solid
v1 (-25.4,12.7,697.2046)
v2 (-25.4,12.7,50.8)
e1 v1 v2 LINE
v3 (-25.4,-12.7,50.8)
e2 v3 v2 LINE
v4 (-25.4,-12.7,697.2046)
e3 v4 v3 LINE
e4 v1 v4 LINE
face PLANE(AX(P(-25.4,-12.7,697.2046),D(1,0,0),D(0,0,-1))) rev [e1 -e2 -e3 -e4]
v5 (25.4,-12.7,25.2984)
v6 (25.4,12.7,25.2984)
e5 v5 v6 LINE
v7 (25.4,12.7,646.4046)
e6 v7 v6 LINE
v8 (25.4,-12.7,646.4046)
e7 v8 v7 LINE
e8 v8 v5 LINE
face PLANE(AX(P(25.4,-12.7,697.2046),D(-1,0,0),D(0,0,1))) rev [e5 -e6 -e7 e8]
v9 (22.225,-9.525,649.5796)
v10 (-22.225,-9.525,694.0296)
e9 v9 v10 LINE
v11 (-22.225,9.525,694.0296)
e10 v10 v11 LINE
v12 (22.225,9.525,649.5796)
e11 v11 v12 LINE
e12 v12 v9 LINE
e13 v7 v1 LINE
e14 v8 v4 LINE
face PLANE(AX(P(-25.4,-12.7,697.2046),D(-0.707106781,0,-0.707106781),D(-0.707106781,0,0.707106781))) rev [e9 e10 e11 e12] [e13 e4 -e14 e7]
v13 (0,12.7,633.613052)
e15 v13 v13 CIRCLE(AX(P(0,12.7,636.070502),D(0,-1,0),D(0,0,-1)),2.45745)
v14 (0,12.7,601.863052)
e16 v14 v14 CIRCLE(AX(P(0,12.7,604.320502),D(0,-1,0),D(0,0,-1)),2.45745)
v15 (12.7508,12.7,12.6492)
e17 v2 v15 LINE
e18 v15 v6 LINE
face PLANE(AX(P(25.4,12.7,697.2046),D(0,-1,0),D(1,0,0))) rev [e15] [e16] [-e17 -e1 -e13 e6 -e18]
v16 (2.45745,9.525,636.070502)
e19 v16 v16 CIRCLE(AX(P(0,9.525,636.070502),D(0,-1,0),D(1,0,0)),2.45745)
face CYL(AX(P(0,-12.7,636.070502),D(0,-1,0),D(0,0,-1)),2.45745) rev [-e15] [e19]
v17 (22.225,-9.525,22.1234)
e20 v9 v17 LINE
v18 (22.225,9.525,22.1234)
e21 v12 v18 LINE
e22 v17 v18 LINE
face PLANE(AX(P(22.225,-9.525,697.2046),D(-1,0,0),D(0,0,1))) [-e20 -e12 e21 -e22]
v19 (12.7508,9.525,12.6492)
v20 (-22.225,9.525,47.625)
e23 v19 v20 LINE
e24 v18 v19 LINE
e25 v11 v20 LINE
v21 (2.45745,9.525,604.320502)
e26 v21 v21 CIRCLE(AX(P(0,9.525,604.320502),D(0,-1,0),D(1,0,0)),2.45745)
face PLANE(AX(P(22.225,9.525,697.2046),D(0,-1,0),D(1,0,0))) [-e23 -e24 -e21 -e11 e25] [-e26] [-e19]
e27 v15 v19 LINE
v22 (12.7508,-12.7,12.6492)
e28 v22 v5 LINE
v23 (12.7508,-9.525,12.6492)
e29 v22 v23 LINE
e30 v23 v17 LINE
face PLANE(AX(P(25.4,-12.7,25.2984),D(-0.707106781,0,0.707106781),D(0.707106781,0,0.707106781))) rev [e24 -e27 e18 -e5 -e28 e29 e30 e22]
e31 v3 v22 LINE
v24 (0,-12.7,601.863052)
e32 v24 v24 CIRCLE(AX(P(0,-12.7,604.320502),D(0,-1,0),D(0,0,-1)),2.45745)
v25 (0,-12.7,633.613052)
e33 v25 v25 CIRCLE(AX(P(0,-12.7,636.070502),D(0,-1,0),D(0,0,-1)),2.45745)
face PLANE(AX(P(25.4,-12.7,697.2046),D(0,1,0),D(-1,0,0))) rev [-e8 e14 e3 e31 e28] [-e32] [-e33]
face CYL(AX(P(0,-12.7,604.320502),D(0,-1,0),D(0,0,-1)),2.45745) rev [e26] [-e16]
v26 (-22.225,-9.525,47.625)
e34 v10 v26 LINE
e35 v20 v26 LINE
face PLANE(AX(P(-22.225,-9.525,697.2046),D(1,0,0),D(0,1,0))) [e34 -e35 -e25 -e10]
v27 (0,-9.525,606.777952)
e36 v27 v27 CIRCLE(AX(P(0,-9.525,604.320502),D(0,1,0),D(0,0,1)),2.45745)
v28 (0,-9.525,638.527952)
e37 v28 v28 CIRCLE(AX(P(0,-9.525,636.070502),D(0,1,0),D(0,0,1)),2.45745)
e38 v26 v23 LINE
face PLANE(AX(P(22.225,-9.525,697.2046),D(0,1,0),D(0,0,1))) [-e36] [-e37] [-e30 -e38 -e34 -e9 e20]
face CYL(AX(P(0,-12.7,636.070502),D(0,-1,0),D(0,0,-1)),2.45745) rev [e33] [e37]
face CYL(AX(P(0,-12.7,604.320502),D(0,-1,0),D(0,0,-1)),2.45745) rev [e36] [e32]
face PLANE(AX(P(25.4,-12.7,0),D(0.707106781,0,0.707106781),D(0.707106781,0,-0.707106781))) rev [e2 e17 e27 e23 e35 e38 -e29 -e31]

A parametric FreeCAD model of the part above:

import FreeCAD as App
import Part
import Sketcher
Q = App.Units.Quantity


def add_polygon(sketch, points):
    """Adds a closed chain of lines whose ends are joined by coincident constraints."""
    first, n = sketch.GeometryCount, len(points)
    for a, b in zip(points, points[1:] + points[:1]):
        sketch.addGeometry(Part.LineSegment(App.Vector(*a, 0), App.Vector(*b, 0)), False)
    for i in range(n):
        sketch.addConstraint(Sketcher.Constraint("Coincident", first + i, 2, first + (i + 1) % n, 1))

doc = App.newDocument("Part")
params = doc.addObject("Spreadsheet::Sheet", "Params")
for row, (alias, value) in enumerate([
    ("sketch1_width", "2 in"),
    ("sketch1_height", "1 in"),
    ("sketch1_width2", "1.75 in"),
    ("sketch1_height2", "0.75 in"),
    ("pad1_length", "27.449 in"),
    ("sketch2_width", "2 in"),
    ("sketch3_height", "0.996 in"),
    ("hole_diameter", "0.1935 in"),
], start=1):
    params.set(f"A{row}", alias)
    params.set(f"B{row}", "=" + value)
    params.setAlias(f"B{row}", alias)

body = doc.addObject("PartDesign::Body", "Body")

# Sketch on XY plane
sketch1 = body.newObject("Sketcher::SketchObject", "Sketch")
sketch1.AttachmentSupport = (doc.getObject("XY_Plane"), [""])
sketch1.MapMode = "FlatFace"
add_polygon(sketch1, [(-25, 13), (-25, -13), (25, -13), (25, 13)])  # lines 0-3
add_polygon(sketch1, [(22, -10), (-22, -10), (-22, 10), (22, 10)])  # lines 4-7
sketch1.addConstraint([
    Sketcher.Constraint("Vertical", 0),
    Sketcher.Constraint("Horizontal", 1),
    Sketcher.Constraint("Vertical", 2),
    Sketcher.Constraint("Horizontal", 3),
    Sketcher.Constraint("Horizontal", 4),
    Sketcher.Constraint("Vertical", 5),
    Sketcher.Constraint("Horizontal", 6),
    Sketcher.Constraint("Vertical", 7),
    Sketcher.Constraint("Symmetric", 0, 2, 2, 2, -1, 1),
    Sketcher.Constraint("Symmetric", 4, 2, 6, 2, -1, 1),
    Sketcher.Constraint("DistanceX", 1, 1, 1, 2, Q("2 in")),
    Sketcher.Constraint("DistanceY", 0, 2, 0, 1, Q("1 in")),
    Sketcher.Constraint("DistanceX", 4, 2, 4, 1, Q("1.75 in")),
    Sketcher.Constraint("DistanceY", 5, 1, 5, 2, Q("0.75 in")),
])
sketch1.setExpression("Constraints[18]", "Params.sketch1_width")
sketch1.setExpression("Constraints[19]", "Params.sketch1_height")
sketch1.setExpression("Constraints[20]", "Params.sketch1_width2")
sketch1.setExpression("Constraints[21]", "Params.sketch1_height2")
pad1 = body.newObject("PartDesign::Pad", "Pad")
pad1.Profile = sketch1
pad1.setExpression("Length", "Params.pad1_length")

# Sketch on XZ plane
sketch2 = body.newObject("Sketcher::SketchObject", "Sketch001")
sketch2.AttachmentSupport = (doc.getObject("XZ_Plane"), [""])
sketch2.MapMode = "FlatFace"
sketch2.AttachmentOffset = App.Placement(App.Vector(0, 0, -0.5 * 25.4), App.Rotation())
add_polygon(sketch2, [(25, 646), (-25, 697), (25, 697)])  # lines 0-2
add_polygon(sketch2, [(-25, 51), (25, 0), (-25, 0)])  # lines 3-5
sketch2.addConstraint([
    Sketcher.Constraint("Horizontal", 1),
    Sketcher.Constraint("Vertical", 2),
    Sketcher.Constraint("Horizontal", 4),
    Sketcher.Constraint("Vertical", 5),
    Sketcher.Constraint("Symmetric", 3, 2, 4, 2, -1, 1),
    Sketcher.Constraint("Parallel", 0, 3),
    Sketcher.Constraint("Vertical", 2, 2, 3, 2),
    Sketcher.Constraint("Vertical", 0, 2, 4, 2),
    Sketcher.Constraint("Equal", 4, 2),
    Sketcher.Constraint("DistanceX", 1, 1, 1, 2, Q("2 in")),
    Sketcher.Constraint("DistanceY", -1, 1, 0, 2, Q("27.449 in")),
])
sketch2.setExpression("Constraints[15]", "Params.sketch2_width")
pocket1 = body.newObject("PartDesign::Pocket", "Pocket")
pocket1.Profile = sketch2
pocket1.Type = "ThroughAll"
pocket1.Reversed = True

# Sketch on XZ plane
sketch3 = body.newObject("Sketcher::SketchObject", "Sketch002")
sketch3.AttachmentSupport = (doc.getObject("XZ_Plane"), [""])
sketch3.MapMode = "FlatFace"
sketch3.AttachmentOffset = App.Placement(App.Vector(0, 0, -0.5 * 25.4), App.Rotation())
add_polygon(sketch3, [(25, 25), (25, 0), (13, 13)])  # lines 0-2
sketch3.addConstraint([
    Sketcher.Constraint("Vertical", 0),
    Sketcher.Constraint("PointOnObject", 0, 2, -1),
    Sketcher.Constraint("Perpendicular", 1, 2),
    Sketcher.Constraint("Equal", 1, 2),
    Sketcher.Constraint("DistanceX", -1, 1, 0, 2, Q("1 in")),
    Sketcher.Constraint("DistanceY", 0, 2, 0, 1, Q("0.996 in")),
])
sketch3.setExpression("Constraints[8]", "Params.sketch3_height")
pocket2 = body.newObject("PartDesign::Pocket", "Pocket001")
pocket2.Profile = sketch3
pocket2.Type = "ThroughAll"
pocket2.Reversed = True

# Sketch on XZ plane
sketch4 = body.newObject("Sketcher::SketchObject", "Sketch003")
sketch4.AttachmentSupport = (doc.getObject("XZ_Plane"), [""])
sketch4.MapMode = "FlatFace"
sketch4.AttachmentOffset = App.Placement(App.Vector(0, 0, 0.5 * 25.4), App.Rotation())
sketch4.addGeometry([
    Part.Circle(App.Vector(0, 604.3, 0), App.Vector(0, 0, 1), 2.5),
    Part.Circle(App.Vector(0, 636.1, 0), App.Vector(0, 0, 1), 2.5),
], False)
sketch4.addConstraint([
    Sketcher.Constraint("Equal", 0, 1),
    Sketcher.Constraint("PointOnObject", 0, 3, -2),
    Sketcher.Constraint("PointOnObject", 1, 3, -2),
    Sketcher.Constraint("Diameter", 0, Q("0.1935 in")),
    Sketcher.Constraint("DistanceY", 0, 3, 1, 3, Q("1.25 in")),
    Sketcher.Constraint("DistanceY", -1, 1, 0, 3, Q("604.320502 mm")),
])
doc.recompute()
hole = body.newObject("PartDesign::Hole", "Hole")
hole.Profile = sketch4
hole.ThreadType = "None"
hole.setExpression("Diameter", "Params.hole_diameter")
hole.DepthType = "ThroughAll"

doc.recompute()
